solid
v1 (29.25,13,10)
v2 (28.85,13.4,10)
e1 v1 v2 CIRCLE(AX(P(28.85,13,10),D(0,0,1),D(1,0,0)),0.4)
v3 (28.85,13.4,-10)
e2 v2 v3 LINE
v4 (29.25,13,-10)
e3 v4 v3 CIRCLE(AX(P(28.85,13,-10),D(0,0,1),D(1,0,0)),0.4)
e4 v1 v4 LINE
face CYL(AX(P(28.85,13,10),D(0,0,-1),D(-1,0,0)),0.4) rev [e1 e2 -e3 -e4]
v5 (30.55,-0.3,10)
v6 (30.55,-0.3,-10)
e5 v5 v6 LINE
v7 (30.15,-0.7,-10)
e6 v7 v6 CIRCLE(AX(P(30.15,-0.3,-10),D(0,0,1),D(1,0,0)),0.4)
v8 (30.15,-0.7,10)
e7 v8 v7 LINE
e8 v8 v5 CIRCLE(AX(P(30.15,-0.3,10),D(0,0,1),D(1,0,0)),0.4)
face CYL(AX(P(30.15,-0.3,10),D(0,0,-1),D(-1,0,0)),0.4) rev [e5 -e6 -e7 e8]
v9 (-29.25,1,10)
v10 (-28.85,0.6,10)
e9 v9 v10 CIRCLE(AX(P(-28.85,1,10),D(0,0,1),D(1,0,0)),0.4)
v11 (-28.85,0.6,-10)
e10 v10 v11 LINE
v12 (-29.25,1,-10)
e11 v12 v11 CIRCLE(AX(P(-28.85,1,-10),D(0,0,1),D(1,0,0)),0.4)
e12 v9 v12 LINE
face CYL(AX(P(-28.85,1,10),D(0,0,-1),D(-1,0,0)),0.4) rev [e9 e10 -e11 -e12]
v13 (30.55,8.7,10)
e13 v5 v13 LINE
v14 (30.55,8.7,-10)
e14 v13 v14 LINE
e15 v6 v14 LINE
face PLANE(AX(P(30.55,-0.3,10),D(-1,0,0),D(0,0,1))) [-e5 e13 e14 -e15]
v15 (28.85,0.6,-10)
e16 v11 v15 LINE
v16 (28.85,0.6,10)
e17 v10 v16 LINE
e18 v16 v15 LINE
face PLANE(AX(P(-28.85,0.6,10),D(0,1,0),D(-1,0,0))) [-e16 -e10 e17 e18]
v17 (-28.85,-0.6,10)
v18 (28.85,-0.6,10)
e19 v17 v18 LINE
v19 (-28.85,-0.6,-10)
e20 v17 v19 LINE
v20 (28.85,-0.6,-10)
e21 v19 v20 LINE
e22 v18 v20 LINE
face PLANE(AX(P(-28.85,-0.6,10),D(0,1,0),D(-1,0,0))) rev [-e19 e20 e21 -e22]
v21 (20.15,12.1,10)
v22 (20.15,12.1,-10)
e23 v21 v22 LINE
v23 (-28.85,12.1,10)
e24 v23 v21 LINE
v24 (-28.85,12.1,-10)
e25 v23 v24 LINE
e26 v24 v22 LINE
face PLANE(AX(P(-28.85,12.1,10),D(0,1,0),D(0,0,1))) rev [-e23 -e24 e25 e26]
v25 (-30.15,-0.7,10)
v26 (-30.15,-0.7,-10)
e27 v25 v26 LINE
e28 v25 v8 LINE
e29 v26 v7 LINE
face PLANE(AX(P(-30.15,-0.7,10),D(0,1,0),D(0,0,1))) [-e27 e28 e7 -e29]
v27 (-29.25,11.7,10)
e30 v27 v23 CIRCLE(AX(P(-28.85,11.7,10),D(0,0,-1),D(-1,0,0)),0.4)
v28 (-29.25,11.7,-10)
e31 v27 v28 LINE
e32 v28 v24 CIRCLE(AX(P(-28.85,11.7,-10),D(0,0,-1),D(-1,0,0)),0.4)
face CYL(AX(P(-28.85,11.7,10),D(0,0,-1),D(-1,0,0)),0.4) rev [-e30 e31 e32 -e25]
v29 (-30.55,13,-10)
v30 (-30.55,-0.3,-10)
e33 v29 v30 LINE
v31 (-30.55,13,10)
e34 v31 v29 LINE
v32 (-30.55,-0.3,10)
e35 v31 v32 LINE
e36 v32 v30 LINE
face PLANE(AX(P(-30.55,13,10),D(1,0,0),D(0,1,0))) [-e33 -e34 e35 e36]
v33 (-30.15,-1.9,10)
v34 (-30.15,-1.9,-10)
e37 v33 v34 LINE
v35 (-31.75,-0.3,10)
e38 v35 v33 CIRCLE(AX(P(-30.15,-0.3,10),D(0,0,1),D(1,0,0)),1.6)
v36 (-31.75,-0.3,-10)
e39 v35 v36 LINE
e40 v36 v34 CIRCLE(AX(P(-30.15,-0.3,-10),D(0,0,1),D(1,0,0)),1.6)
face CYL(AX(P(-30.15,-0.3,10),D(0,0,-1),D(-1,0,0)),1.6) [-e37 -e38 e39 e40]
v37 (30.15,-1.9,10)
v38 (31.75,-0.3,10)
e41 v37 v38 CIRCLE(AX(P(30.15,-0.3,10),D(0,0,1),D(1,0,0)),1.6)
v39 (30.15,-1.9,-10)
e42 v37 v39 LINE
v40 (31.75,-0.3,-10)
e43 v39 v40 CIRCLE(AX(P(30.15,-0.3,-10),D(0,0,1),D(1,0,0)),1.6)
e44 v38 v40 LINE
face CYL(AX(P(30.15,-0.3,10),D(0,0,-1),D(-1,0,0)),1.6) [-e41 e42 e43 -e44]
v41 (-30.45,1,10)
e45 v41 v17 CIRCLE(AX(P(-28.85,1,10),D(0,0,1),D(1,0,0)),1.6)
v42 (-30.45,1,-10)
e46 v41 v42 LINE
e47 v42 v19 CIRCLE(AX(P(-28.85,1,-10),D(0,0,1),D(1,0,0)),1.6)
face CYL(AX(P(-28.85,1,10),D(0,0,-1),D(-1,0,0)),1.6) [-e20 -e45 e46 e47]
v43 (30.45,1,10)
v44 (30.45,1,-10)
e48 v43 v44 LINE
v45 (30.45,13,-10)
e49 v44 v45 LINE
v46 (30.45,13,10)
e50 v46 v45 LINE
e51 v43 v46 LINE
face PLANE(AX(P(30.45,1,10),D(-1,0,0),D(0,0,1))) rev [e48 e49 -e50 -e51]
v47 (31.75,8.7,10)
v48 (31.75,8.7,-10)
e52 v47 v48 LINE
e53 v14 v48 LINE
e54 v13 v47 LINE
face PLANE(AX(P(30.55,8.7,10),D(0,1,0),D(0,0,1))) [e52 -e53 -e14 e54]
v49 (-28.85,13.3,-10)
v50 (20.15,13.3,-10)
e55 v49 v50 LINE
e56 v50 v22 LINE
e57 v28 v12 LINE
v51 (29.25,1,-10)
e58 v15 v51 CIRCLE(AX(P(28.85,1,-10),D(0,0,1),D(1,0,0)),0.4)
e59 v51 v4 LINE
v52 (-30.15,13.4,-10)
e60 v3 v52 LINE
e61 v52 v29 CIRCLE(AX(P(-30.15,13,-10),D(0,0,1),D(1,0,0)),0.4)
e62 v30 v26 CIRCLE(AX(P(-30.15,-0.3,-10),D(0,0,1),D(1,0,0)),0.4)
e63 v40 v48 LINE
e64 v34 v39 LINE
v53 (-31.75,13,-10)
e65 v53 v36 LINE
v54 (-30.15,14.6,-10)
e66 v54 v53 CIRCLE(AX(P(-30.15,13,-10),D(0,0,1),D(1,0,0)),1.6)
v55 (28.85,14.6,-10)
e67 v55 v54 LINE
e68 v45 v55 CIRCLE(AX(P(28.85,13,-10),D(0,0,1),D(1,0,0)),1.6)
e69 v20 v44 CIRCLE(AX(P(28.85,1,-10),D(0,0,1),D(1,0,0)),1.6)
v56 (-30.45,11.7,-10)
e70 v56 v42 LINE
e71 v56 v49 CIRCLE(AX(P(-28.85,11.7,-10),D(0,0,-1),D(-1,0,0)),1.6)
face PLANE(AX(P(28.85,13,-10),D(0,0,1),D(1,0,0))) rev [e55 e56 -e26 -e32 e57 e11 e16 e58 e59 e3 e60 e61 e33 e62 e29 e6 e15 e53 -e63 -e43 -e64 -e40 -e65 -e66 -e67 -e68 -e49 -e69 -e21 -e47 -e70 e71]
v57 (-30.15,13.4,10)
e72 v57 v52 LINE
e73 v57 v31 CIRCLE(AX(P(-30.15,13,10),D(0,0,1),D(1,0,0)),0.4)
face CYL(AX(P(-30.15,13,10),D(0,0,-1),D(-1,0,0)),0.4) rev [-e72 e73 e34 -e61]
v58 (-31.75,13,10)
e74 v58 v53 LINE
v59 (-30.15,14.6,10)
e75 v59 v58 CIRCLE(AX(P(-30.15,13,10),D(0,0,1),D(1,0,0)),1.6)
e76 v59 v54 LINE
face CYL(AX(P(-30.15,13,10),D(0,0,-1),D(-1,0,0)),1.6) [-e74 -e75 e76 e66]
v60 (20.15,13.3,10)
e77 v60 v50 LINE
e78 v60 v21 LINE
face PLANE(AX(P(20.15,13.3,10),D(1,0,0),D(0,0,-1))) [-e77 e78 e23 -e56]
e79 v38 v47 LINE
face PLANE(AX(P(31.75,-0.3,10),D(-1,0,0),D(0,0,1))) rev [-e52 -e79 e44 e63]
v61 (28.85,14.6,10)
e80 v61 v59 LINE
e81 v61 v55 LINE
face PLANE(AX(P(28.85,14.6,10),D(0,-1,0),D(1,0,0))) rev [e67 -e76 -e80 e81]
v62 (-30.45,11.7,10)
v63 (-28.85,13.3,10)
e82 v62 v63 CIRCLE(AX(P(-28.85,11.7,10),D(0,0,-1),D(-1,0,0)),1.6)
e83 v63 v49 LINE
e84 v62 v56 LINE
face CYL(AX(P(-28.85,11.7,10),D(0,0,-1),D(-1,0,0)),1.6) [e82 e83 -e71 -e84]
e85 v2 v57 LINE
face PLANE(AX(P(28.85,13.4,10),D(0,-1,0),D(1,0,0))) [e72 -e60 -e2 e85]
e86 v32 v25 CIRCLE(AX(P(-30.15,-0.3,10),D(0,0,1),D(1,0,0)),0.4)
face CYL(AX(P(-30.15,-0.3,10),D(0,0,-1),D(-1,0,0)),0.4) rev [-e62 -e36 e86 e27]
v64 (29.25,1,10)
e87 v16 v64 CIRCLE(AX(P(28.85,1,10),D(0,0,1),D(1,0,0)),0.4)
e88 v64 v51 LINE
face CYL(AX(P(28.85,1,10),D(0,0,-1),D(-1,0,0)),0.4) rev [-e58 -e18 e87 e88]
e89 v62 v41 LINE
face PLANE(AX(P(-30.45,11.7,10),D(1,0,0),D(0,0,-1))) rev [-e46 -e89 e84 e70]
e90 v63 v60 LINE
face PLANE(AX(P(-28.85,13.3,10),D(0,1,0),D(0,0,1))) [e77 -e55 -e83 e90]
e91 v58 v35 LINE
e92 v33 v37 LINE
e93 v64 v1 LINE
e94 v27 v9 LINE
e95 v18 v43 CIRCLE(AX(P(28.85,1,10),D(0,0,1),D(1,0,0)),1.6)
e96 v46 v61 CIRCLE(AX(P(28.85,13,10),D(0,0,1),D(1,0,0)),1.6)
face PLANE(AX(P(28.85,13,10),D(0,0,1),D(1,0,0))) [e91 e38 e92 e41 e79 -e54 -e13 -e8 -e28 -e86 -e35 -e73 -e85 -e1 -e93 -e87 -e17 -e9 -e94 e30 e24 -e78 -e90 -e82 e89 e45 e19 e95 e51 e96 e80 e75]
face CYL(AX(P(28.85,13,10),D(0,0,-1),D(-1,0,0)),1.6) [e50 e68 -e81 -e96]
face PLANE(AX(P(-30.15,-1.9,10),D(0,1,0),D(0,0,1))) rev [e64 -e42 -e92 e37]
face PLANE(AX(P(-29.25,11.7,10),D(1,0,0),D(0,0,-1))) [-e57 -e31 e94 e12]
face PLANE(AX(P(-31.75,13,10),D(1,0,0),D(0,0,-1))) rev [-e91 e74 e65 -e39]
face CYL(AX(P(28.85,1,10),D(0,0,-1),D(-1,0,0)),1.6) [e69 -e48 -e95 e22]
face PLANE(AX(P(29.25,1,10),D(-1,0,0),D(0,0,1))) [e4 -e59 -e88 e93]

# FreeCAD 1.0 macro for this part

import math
import FreeCAD as App
import Part
import Sketcher
Q = App.Units.Quantity

doc = App.newDocument("Part")
body = doc.addObject("PartDesign::Body", "Body")

# Sketch on XY plane
sketch1 = body.newObject("Sketcher::SketchObject", "Sketch")
sketch1.AttachmentSupport = (doc.getObject("XY_Plane"), [""])
sketch1.MapMode = "FlatFace"
sketch1.addGeometry([
    Part.LineSegment(App.Vector(20.15, 13.3, 0), App.Vector(-28.85, 13.3, 0)),  # 0
    Part.ArcOfCircle(Part.Circle(App.Vector(-28.85, 11.7, 0), App.Vector(0, 0, 1), 1.6), math.radians(90), math.radians(180)),  # 1
    Part.LineSegment(App.Vector(-30.45, 11.7, 0), App.Vector(-30.45, 1, 0)),  # 2
    Part.ArcOfCircle(Part.Circle(App.Vector(-28.85, 1, 0), App.Vector(0, 0, 1), 1.6), math.radians(180), math.radians(270)),  # 3
    Part.LineSegment(App.Vector(-28.85, -0.6, 0), App.Vector(28.85, -0.6, 0)),  # 4
    Part.ArcOfCircle(Part.Circle(App.Vector(28.85, 1, 0), App.Vector(0, 0, 1), 1.6), math.radians(-90), math.radians(0)),  # 5
    Part.LineSegment(App.Vector(30.45, 1, 0), App.Vector(30.45, 13, 0)),  # 6
    Part.ArcOfCircle(Part.Circle(App.Vector(28.85, 13, 0), App.Vector(0, 0, 1), 1.6), math.radians(0), math.radians(90)),  # 7
    Part.LineSegment(App.Vector(28.85, 14.6, 0), App.Vector(-30.15, 14.6, 0)),  # 8
    Part.ArcOfCircle(Part.Circle(App.Vector(-30.15, 13, 0), App.Vector(0, 0, 1), 1.6), math.radians(90), math.radians(180)),  # 9
    Part.LineSegment(App.Vector(-31.75, 13, 0), App.Vector(-31.75, -0.3, 0)),  # 10
    Part.ArcOfCircle(Part.Circle(App.Vector(-30.15, -0.3, 0), App.Vector(0, 0, 1), 1.6), math.radians(180), math.radians(270)),  # 11
    Part.LineSegment(App.Vector(-30.15, -1.9, 0), App.Vector(30.15, -1.9, 0)),  # 12
    Part.ArcOfCircle(Part.Circle(App.Vector(30.15, -0.3, 0), App.Vector(0, 0, 1), 1.6), math.radians(-90), math.radians(0)),  # 13
    Part.LineSegment(App.Vector(31.75, -0.3, 0), App.Vector(31.75, 8.7, 0)),  # 14
    Part.LineSegment(App.Vector(31.75, 8.7, 0), App.Vector(30.55, 8.7, 0)),  # 15
    Part.LineSegment(App.Vector(30.55, 8.7, 0), App.Vector(30.55, -0.3, 0)),  # 16
    Part.ArcOfCircle(Part.Circle(App.Vector(30.15, -0.3, 0), App.Vector(0, 0, 1), 0.4), math.radians(-90), math.radians(0)),  # 17
    Part.LineSegment(App.Vector(30.15, -0.7, 0), App.Vector(-30.15, -0.7, 0)),  # 18
    Part.ArcOfCircle(Part.Circle(App.Vector(-30.15, -0.3, 0), App.Vector(0, 0, 1), 0.4), math.radians(-180), math.radians(-90)),  # 19
    Part.LineSegment(App.Vector(-30.55, -0.3, 0), App.Vector(-30.55, 13, 0)),  # 20
    Part.ArcOfCircle(Part.Circle(App.Vector(-30.15, 13, 0), App.Vector(0, 0, 1), 0.4), math.radians(90), math.radians(180)),  # 21
    Part.LineSegment(App.Vector(-30.15, 13.4, 0), App.Vector(28.85, 13.4, 0)),  # 22
    Part.ArcOfCircle(Part.Circle(App.Vector(28.85, 13, 0), App.Vector(0, 0, 1), 0.4), math.radians(0), math.radians(90)),  # 23
    Part.LineSegment(App.Vector(29.25, 13, 0), App.Vector(29.25, 1, 0)),  # 24
    Part.ArcOfCircle(Part.Circle(App.Vector(28.85, 1, 0), App.Vector(0, 0, 1), 0.4), math.radians(-90), math.radians(0)),  # 25
    Part.LineSegment(App.Vector(28.85, 0.6, 0), App.Vector(-28.85, 0.6, 0)),  # 26
    Part.ArcOfCircle(Part.Circle(App.Vector(-28.85, 1, 0), App.Vector(0, 0, 1), 0.4), math.radians(-180), math.radians(-90)),  # 27
    Part.LineSegment(App.Vector(-29.25, 1, 0), App.Vector(-29.25, 11.7, 0)),  # 28
    Part.ArcOfCircle(Part.Circle(App.Vector(-28.85, 11.7, 0), App.Vector(0, 0, 1), 0.4), math.radians(90), math.radians(180)),  # 29
    Part.LineSegment(App.Vector(-28.85, 12.1, 0), App.Vector(20.15, 12.1, 0)),  # 30
    Part.LineSegment(App.Vector(20.15, 12.1, 0), App.Vector(20.15, 13.3, 0)),  # 31
], False)
sketch1.addConstraint([
    Sketcher.Constraint("Tangent", 0, 2, 1, 1),
    Sketcher.Constraint("Tangent", 1, 2, 2, 1),
    Sketcher.Constraint("Tangent", 2, 2, 3, 1),
    Sketcher.Constraint("Tangent", 3, 2, 4, 1),
    Sketcher.Constraint("Tangent", 4, 2, 5, 1),
    Sketcher.Constraint("Tangent", 5, 2, 6, 1),
    Sketcher.Constraint("Tangent", 6, 2, 7, 1),
    Sketcher.Constraint("Tangent", 7, 2, 8, 1),
    Sketcher.Constraint("Tangent", 8, 2, 9, 1),
    Sketcher.Constraint("Tangent", 9, 2, 10, 1),
    Sketcher.Constraint("Tangent", 10, 2, 11, 1),
    Sketcher.Constraint("Tangent", 11, 2, 12, 1),
    Sketcher.Constraint("Tangent", 12, 2, 13, 1),
    Sketcher.Constraint("Tangent", 13, 2, 14, 1),
    Sketcher.Constraint("Coincident", 14, 2, 15, 1),
    Sketcher.Constraint("Coincident", 15, 2, 16, 1),
    Sketcher.Constraint("Tangent", 16, 2, 17, 2),
    Sketcher.Constraint("Tangent", 17, 1, 18, 1),
    Sketcher.Constraint("Tangent", 18, 2, 19, 2),
    Sketcher.Constraint("Tangent", 19, 1, 20, 1),
    Sketcher.Constraint("Tangent", 20, 2, 21, 2),
    Sketcher.Constraint("Tangent", 21, 1, 22, 1),
    Sketcher.Constraint("Tangent", 22, 2, 23, 2),
    Sketcher.Constraint("Tangent", 23, 1, 24, 1),
    Sketcher.Constraint("Tangent", 24, 2, 25, 2),
    Sketcher.Constraint("Tangent", 25, 1, 26, 1),
    Sketcher.Constraint("Tangent", 26, 2, 27, 2),
    Sketcher.Constraint("Tangent", 27, 1, 28, 1),
    Sketcher.Constraint("Tangent", 28, 2, 29, 2),
    Sketcher.Constraint("Tangent", 29, 1, 30, 1),
    Sketcher.Constraint("Coincident", 30, 2, 31, 1),
    Sketcher.Constraint("Coincident", 31, 2, 0, 1),
    Sketcher.Constraint("Horizontal", 0),
    Sketcher.Constraint("Vertical", 2),
    Sketcher.Constraint("Horizontal", 4),
    Sketcher.Constraint("Vertical", 6),
    Sketcher.Constraint("Horizontal", 8),
    Sketcher.Constraint("Vertical", 10),
    Sketcher.Constraint("Horizontal", 12),
    Sketcher.Constraint("Vertical", 14),
    Sketcher.Constraint("Horizontal", 15),
    Sketcher.Constraint("Vertical", 16),
    Sketcher.Constraint("Horizontal", 18),
    Sketcher.Constraint("Vertical", 20),
    Sketcher.Constraint("Horizontal", 22),
    Sketcher.Constraint("Vertical", 24),
    Sketcher.Constraint("Horizontal", 26),
    Sketcher.Constraint("Vertical", 28),
    Sketcher.Constraint("Horizontal", 30),
    Sketcher.Constraint("Vertical", 31),
    Sketcher.Constraint("Coincident", 17, 3, 13, 3),
    Sketcher.Constraint("Coincident", 19, 3, 11, 3),
    Sketcher.Constraint("Coincident", 21, 3, 9, 3),
    Sketcher.Constraint("Coincident", 23, 3, 7, 3),
    Sketcher.Constraint("Coincident", 25, 3, 5, 3),
    Sketcher.Constraint("Coincident", 27, 3, 3, 3),
    Sketcher.Constraint("Coincident", 29, 3, 1, 3),
    Sketcher.Constraint("Equal", 1, 3),
    Sketcher.Constraint("Equal", 3, 5),
    Sketcher.Constraint("Equal", 5, 7),
    Sketcher.Constraint("Equal", 7, 9),
    Sketcher.Constraint("Equal", 9, 11),
    Sketcher.Constraint("Equal", 11, 13),
    Sketcher.Constraint("Symmetric", 3, 2, 25, 1, -1, 1),
    Sketcher.Constraint("Radius", 1, Q("1.6 mm")),
    Sketcher.Constraint("Radius", 17, Q("0.4 mm")),
    Sketcher.Constraint("DistanceX", 0, 2, 0, 1, Q("49 mm")),
    Sketcher.Constraint("DistanceX", 8, 2, 8, 1, Q("59 mm")),
    Sketcher.Constraint("DistanceY", 6, 1, 6, 2, Q("12 mm")),
    Sketcher.Constraint("DistanceY", 14, 1, 14, 2, Q("9 mm")),
    Sketcher.Constraint("DistanceX", 4, 1, 4, 2, Q("57.7 mm")),
    Sketcher.Constraint("DistanceX", 12, 1, 12, 2, Q("60.3 mm")),
    Sketcher.Constraint("DistanceY", 2, 2, 2, 1, Q("10.7 mm")),
    Sketcher.Constraint("DistanceY", 10, 2, 10, 1, Q("13.3 mm")),
])
pad1 = body.newObject("PartDesign::Pad", "Pad")
pad1.Profile = sketch1
pad1.Length = 20
pad1.Midplane = True

doc.recompute()
